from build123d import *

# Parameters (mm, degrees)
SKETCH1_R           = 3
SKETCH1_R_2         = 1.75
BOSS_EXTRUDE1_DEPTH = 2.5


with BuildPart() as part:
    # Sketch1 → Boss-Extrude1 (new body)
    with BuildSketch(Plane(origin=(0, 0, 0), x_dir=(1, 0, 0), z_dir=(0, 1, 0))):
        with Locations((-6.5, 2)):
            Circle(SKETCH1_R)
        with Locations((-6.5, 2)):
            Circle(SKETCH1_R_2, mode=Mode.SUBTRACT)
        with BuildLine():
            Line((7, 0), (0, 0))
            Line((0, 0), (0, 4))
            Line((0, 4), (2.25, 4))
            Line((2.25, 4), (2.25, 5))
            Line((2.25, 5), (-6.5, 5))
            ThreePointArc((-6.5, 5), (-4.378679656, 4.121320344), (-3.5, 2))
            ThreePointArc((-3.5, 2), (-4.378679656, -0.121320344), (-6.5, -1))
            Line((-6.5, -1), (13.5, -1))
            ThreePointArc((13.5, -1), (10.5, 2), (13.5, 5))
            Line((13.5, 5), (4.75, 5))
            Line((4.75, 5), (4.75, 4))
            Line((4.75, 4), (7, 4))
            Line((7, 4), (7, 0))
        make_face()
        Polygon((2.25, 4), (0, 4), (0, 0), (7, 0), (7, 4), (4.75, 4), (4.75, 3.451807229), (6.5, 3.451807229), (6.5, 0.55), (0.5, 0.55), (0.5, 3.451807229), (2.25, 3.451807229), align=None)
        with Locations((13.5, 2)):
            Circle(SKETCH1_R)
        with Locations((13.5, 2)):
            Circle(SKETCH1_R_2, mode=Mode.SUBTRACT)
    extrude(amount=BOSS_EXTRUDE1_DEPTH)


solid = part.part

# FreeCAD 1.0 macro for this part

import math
import FreeCAD as App
import Part
import Sketcher

doc = App.newDocument("Part")
body = doc.addObject("PartDesign::Body", "Body")

sketch1 = body.newObject("Sketcher::SketchObject", "Sketch")
sketch1.AttachmentSupport = (doc.getObject("XZ_Plane"), [""])
sketch1.MapMode = "FlatFace"
sketch1.addGeometry([
    Part.ArcOfCircle(Part.Circle(App.Vector(-6.5, -2, 0), App.Vector(0, 0, 1), 3), math.radians(90), math.radians(270)),
    Part.LineSegment(App.Vector(-6.5, 1, 0), App.Vector(13.5, 1, 0)),
    Part.ArcOfCircle(Part.Circle(App.Vector(13.5, -2, 0), App.Vector(0, 0, 1), 3), math.radians(-90), math.radians(90)),
    Part.LineSegment(App.Vector(13.5, -5, 0), App.Vector(4.75, -5, 0)),
    Part.LineSegment(App.Vector(4.75, -5, 0), App.Vector(4.75, -3.451807, 0)),
    Part.LineSegment(App.Vector(4.75, -3.451807, 0), App.Vector(6.5, -3.451807, 0)),
    Part.LineSegment(App.Vector(6.5, -3.451807, 0), App.Vector(6.5, -0.55, 0)),
    Part.LineSegment(App.Vector(6.5, -0.55, 0), App.Vector(0.5, -0.55, 0)),
    Part.LineSegment(App.Vector(0.5, -0.55, 0), App.Vector(0.5, -3.451807, 0)),
    Part.LineSegment(App.Vector(0.5, -3.451807, 0), App.Vector(2.25, -3.451807, 0)),
    Part.LineSegment(App.Vector(2.25, -3.451807, 0), App.Vector(2.25, -5, 0)),
    Part.LineSegment(App.Vector(2.25, -5, 0), App.Vector(-6.5, -5, 0)),
    Part.Circle(App.Vector(-6.5, -2, 0), App.Vector(0, 0, 1), 1.75),
    Part.Circle(App.Vector(13.5, -2, 0), App.Vector(0, 0, 1), 1.75),
], False)
sketch1.addConstraint([
    Sketcher.Constraint("Tangent", 0, 1, 1, 1),
    Sketcher.Constraint("Tangent", 1, 2, 2, 2),
    Sketcher.Constraint("Tangent", 2, 1, 3, 1),
    Sketcher.Constraint("Coincident", 3, 2, 4, 1),
    Sketcher.Constraint("Coincident", 4, 2, 5, 1),
    Sketcher.Constraint("Coincident", 5, 2, 6, 1),
    Sketcher.Constraint("Coincident", 6, 2, 7, 1),
    Sketcher.Constraint("Coincident", 7, 2, 8, 1),
    Sketcher.Constraint("Coincident", 8, 2, 9, 1),
    Sketcher.Constraint("Coincident", 9, 2, 10, 1),
    Sketcher.Constraint("Coincident", 10, 2, 11, 1),
    Sketcher.Constraint("Tangent", 11, 2, 0, 2),
    Sketcher.Constraint("Horizontal", 1),
    Sketcher.Constraint("Horizontal", 3),
    Sketcher.Constraint("Vertical", 4),
    Sketcher.Constraint("Horizontal", 5),
    Sketcher.Constraint("Vertical", 6),
    Sketcher.Constraint("Horizontal", 7),
    Sketcher.Constraint("Vertical", 8),
    Sketcher.Constraint("Horizontal", 9),
    Sketcher.Constraint("Vertical", 10),
    Sketcher.Constraint("Horizontal", 11),
    Sketcher.Constraint("Coincident", 12, 3, 0, 3),
    Sketcher.Constraint("Coincident", 13, 3, 2, 3),
    Sketcher.Constraint("Equal", 0, 2),
    Sketcher.Constraint("Equal", 12, 13),
    Sketcher.Constraint("Horizontal", 5, 2, 8, 2),
    Sketcher.Constraint("Equal", 5, 9),
    Sketcher.Constraint("Equal", 3, 11),
    Sketcher.Constraint("Radius", 0, 3.0),
    Sketcher.Constraint("Diameter", 12, 3.5),
    Sketcher.Constraint("DistanceX", 1, 1, 1, 2, 20.0),
    Sketcher.Constraint("DistanceX", 7, 2, 7, 1, 6.0),
    Sketcher.Constraint("DistanceY", 0, 3, -1, 1, 2.0),
    Sketcher.Constraint("DistanceX", 3, 2, 3, 1, 8.75),
    Sketcher.Constraint("DistanceX", 0, 3, -1, 1, 6.5),
    Sketcher.Constraint("DistanceY", 6, 2, -1, 1, 0.55),
    Sketcher.Constraint("DistanceY", 4, 1, 4, 2, 1.548193),
])
pad1 = body.newObject("PartDesign::Pad", "Pad")
pad1.Profile = sketch1
pad1.Length = 2.5
pad1.Reversed = True

doc.recompute()
